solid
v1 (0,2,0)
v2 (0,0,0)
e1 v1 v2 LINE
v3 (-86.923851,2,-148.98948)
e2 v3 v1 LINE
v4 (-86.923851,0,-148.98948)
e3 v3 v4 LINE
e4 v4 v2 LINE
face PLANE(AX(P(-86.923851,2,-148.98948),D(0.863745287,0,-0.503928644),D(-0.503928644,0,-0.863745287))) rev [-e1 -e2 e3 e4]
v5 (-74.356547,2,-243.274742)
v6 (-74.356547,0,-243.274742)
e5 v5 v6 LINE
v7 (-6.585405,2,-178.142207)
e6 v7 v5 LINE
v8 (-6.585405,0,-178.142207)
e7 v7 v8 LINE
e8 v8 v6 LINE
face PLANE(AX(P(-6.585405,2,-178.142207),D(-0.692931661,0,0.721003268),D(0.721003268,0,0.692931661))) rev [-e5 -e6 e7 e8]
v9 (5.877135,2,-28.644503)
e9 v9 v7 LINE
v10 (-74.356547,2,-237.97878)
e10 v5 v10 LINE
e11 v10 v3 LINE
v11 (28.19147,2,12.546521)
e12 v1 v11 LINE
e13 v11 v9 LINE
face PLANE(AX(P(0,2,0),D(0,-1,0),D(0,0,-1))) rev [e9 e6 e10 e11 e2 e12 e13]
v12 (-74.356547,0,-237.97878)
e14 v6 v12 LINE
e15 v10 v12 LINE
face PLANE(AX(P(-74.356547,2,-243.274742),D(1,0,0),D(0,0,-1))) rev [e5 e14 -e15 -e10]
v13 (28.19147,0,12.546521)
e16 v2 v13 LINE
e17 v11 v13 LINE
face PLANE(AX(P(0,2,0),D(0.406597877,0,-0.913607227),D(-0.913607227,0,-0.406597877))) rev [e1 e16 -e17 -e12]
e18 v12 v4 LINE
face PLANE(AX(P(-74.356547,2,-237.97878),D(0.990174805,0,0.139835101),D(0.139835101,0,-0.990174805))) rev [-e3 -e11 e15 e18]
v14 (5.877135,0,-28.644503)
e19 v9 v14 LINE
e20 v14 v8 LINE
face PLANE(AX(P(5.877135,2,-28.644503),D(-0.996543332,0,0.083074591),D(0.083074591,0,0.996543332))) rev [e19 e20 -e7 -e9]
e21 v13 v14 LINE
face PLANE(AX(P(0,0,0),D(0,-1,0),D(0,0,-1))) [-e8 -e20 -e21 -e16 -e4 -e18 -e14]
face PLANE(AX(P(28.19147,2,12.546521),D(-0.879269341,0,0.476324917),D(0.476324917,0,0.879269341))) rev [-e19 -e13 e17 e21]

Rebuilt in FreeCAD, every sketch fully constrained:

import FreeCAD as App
import Part
import Sketcher


def add_polygon(sketch, points):
    """Adds a closed chain of lines whose ends are joined by coincident constraints."""
    first, n = sketch.GeometryCount, len(points)
    for a, b in zip(points, points[1:] + points[:1]):
        sketch.addGeometry(Part.LineSegment(App.Vector(*a, 0), App.Vector(*b, 0)), False)
    for i in range(n):
        sketch.addConstraint(Sketcher.Constraint("Coincident", first + i, 2, first + (i + 1) % n, 1))

doc = App.newDocument("Part")
body = doc.addObject("PartDesign::Body", "Body")

# Sketch on XZ plane
sketch1 = body.newObject("Sketcher::SketchObject", "Sketch")
sketch1.AttachmentSupport = (doc.getObject("XZ_Plane"), [""])
sketch1.MapMode = "FlatFace"
add_polygon(sketch1, [(-7, -178), (-74, -243), (-74, -238), (-87, -149), (0, 0), (28, 13), (6, -29)])  # lines 0-6
sketch1.addConstraint(Sketcher.Constraint("Vertical", 1))
sketch1.addConstraint(Sketcher.Constraint("Coincident", 3, 2, -1, 1))
sketch1.addConstraint(Sketcher.Constraint("DistanceY", 2, 2, 4, 2, 161.536001))
sketch1.addConstraint(Sketcher.Constraint("DistanceY", 1, 2, 2, 2, 88.989299))
sketch1.addConstraint(Sketcher.Constraint("Distance", 0, 93.995611))
sketch1.addConstraint(Sketcher.Constraint("Distance", 3, 172.49238))
sketch1.addConstraint(Sketcher.Constraint("Distance", 4, 30.85732))
sketch1.addConstraint(Sketcher.Constraint("Distance", 5, 46.846878))
sketch1.addConstraint(Sketcher.Constraint("Distance", 6, 150.01626))
sketch1.addConstraint(Sketcher.Constraint("DistanceY", 1, 1, 1, 2, 5.295962))
sketch1.addConstraint(Sketcher.Constraint("DistanceY", 0, 2, -1, 1, 243.274742))
sketch1.addConstraint(Sketcher.Constraint("DistanceY", 0, 2, 5, 2, 214.630239))
sketch1.addConstraint(Sketcher.Constraint("DistanceX", 6, 2, 5, 2, 12.462539))
pad1 = body.newObject("PartDesign::Pad", "Pad")
pad1.Profile = sketch1
pad1.Length = 2
pad1.Reversed = True

doc.recompute()
